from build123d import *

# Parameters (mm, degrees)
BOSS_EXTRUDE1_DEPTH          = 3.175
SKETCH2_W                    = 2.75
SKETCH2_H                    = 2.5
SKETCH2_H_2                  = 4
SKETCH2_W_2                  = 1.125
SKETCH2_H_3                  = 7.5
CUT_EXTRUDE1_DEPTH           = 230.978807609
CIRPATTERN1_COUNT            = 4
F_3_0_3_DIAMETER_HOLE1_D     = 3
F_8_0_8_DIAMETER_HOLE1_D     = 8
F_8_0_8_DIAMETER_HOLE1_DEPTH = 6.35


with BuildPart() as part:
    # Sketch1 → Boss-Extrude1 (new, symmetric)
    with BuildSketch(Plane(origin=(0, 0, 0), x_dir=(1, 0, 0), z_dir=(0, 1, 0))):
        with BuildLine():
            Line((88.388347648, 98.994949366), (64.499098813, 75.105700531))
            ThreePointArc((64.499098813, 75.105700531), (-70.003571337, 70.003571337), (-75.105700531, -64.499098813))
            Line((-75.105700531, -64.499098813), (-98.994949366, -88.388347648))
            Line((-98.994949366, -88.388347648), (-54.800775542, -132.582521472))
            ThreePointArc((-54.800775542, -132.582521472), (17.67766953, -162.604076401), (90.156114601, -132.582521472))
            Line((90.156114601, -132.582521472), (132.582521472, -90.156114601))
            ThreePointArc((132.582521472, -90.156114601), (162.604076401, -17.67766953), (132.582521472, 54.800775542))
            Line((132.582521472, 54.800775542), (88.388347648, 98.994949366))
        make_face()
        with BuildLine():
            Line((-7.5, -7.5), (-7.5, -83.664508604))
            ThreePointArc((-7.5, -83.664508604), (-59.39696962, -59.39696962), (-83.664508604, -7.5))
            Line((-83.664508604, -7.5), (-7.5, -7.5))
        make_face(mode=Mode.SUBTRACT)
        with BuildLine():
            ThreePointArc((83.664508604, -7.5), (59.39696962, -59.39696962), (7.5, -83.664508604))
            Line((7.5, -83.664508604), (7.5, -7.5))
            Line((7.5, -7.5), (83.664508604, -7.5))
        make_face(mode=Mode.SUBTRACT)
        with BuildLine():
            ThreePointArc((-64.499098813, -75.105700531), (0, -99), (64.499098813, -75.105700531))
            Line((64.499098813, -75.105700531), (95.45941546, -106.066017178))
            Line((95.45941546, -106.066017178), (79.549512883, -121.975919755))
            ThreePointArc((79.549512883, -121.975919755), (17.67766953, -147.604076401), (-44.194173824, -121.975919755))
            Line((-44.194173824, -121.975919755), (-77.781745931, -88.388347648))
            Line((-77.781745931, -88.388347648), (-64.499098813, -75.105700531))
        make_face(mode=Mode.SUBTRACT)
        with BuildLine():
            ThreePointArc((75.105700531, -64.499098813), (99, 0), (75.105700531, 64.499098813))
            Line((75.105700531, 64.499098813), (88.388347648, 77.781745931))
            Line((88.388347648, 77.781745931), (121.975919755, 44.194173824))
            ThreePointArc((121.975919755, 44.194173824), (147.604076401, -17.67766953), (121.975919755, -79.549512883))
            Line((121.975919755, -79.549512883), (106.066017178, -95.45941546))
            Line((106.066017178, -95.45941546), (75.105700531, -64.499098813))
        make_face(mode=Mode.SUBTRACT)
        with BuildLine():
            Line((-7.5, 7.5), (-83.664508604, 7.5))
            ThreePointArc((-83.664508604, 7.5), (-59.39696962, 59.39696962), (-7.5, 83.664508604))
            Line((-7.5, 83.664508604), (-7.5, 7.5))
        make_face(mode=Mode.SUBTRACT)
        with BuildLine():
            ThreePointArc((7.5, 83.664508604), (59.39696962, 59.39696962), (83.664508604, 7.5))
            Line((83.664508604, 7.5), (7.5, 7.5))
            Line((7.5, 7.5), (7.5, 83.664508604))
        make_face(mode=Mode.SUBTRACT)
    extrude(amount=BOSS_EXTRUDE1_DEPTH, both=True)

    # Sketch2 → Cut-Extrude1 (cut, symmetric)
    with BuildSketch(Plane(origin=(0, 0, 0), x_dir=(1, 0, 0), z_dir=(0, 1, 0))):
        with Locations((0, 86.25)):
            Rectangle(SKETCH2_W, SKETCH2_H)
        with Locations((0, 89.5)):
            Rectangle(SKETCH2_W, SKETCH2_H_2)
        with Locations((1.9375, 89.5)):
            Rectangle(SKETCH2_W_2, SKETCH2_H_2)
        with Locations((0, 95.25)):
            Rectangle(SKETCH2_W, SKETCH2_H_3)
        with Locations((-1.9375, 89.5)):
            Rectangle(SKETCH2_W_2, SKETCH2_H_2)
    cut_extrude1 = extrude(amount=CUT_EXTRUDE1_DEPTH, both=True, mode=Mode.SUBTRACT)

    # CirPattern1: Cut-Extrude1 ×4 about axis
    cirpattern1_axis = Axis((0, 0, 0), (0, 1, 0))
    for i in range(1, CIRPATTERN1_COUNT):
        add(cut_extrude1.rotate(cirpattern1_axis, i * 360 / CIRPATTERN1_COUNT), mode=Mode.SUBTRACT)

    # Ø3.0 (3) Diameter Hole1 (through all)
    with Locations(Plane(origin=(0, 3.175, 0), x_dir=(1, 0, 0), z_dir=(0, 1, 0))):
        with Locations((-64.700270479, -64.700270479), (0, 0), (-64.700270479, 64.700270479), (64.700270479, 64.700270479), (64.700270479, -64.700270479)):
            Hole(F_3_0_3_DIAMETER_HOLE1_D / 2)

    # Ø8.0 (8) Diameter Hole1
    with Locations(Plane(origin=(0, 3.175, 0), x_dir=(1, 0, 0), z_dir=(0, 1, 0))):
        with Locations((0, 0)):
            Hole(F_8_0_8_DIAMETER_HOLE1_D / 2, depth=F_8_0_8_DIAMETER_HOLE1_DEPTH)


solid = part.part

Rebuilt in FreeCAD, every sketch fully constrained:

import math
import FreeCAD as App
import Part
import Sketcher

V = App.Vector
Q = App.Units.Quantity


def add_polygon(sketch, points):
    """Adds a closed chain of lines whose ends are joined by coincident constraints."""
    first, n = sketch.GeometryCount, len(points)
    for a, b in zip(points, points[1:] + points[:1]):
        sketch.addGeometry(Part.LineSegment(App.Vector(*a, 0), App.Vector(*b, 0)), False)
    for i in range(n):
        sketch.addConstraint(Sketcher.Constraint("Coincident", first + i, 2, first + (i + 1) % n, 1))

doc = App.newDocument("Part")
params = doc.addObject("Spreadsheet::Sheet", "Params")
for row, (alias, value) in enumerate([
    ("sketch1_radius", "99 mm"),
    ("sketch1_radius2", "84 mm"),
    ("sketch1_radius3", "102.5 mm"),
    ("sketch1_radius4", "87.5 mm"),
    ("sketch1_length", "60 mm"),
    ("pad1_length", "6.35 mm"),
    ("sketch2_height", "4 mm"),
    ("sketch2_height2", "2.5 mm"),
    ("sketch2_height3", "7.5 mm"),
    ("sketch2_width", "2.75 mm"),
    ("pocket1_length", "461.957615 mm"),
    ("sketch3_diameter", "3 mm"),
    ("hole_diameter", "3 mm"),
    ("sketch4_diameter", "8 mm"),
    ("hole2_diameter", "8 mm"),
    ("hole2_depth", "6.35 mm"),
], start=1):
    params.set(f"A{row}", alias)
    params.set(f"B{row}", "=" + value)
    params.setAlias(f"B{row}", alias)

body = doc.addObject("PartDesign::Body", "Body")

# Sketch on XZ plane
sketch1 = doc.addObject("Sketcher::SketchObject", "Sketch")
body.addObject(sketch1)
sketch1.AttachmentSupport = (doc.XZ_Plane, [""])
sketch1.MapMode = "FlatFace"
sketch1.addGeometry(Part.LineSegment(V(88, -99, 0), V(64, -75, 0)), False)
sketch1.addGeometry(Part.ArcOfCircle(Part.Circle(V(0, 0, 0), V(0, 0, 1), 99), math.radians(139), math.radians(311)), False)
sketch1.addGeometry(Part.LineSegment(V(-75, 64, 0), V(-99, 88, 0)), False)
sketch1.addGeometry(Part.LineSegment(V(-99, 88, 0), V(-55, 133, 0)), False)
sketch1.addGeometry(Part.ArcOfCircle(Part.Circle(V(18, 60, 0), V(0, 0, 1), 102), math.radians(45), math.radians(135)), False)
sketch1.addGeometry(Part.LineSegment(V(90, 133, 0), V(133, 90, 0)), False)
sketch1.addGeometry(Part.ArcOfCircle(Part.Circle(V(60, 18, 0), V(0, 0, 1), 102), math.radians(-45), math.radians(45)), False)
sketch1.addGeometry(Part.LineSegment(V(133, -55, 0), V(88, -99, 0)), False)
sketch1.addGeometry(Part.LineSegment(V(-78, 88, 0), V(-64, 75, 0)), False)
sketch1.addGeometry(Part.ArcOfCircle(Part.Circle(V(0, 0, 0), V(0, 0, 1), 99), math.radians(49), math.radians(131)), False)
sketch1.addGeometry(Part.LineSegment(V(64, 75, 0), V(95, 106, 0)), False)
sketch1.addGeometry(Part.LineSegment(V(95, 106, 0), V(80, 122, 0)), False)
sketch1.addGeometry(Part.ArcOfCircle(Part.Circle(V(18, 60, 0), V(0, 0, 1), 88), math.radians(45), math.radians(135)), False)
sketch1.addGeometry(Part.LineSegment(V(-44, 122, 0), V(-78, 88, 0)), False)
sketch1.addGeometry(Part.LineSegment(V(-84, 8, 0), V(-8, 8, 0)), False)
sketch1.addGeometry(Part.LineSegment(V(-8, 8, 0), V(-8, 84, 0)), False)
sketch1.addGeometry(Part.ArcOfCircle(Part.Circle(V(0, 0, 0), V(0, 0, 1), 84), math.radians(95), math.radians(175)), False)
sketch1.addGeometry(Part.LineSegment(V(8, 8, 0), V(84, 8, 0)), False)
sketch1.addGeometry(Part.ArcOfCircle(Part.Circle(V(0, 0, 0), V(0, 0, 1), 84), math.radians(5), math.radians(85)), False)
sketch1.addGeometry(Part.LineSegment(V(8, 84, 0), V(8, 8, 0)), False)
sketch1.addGeometry(Part.LineSegment(V(-8, -84, 0), V(-8, -8, 0)), False)
sketch1.addGeometry(Part.LineSegment(V(-8, -8, 0), V(-84, -8, 0)), False)
sketch1.addGeometry(Part.ArcOfCircle(Part.Circle(V(0, 0, 0), V(0, 0, 1), 84), math.radians(-175), math.radians(-95)), False)
sketch1.addGeometry(Part.LineSegment(V(106, 95, 0), V(75, 64, 0)), False)
sketch1.addGeometry(Part.ArcOfCircle(Part.Circle(V(0, 0, 0), V(0, 0, 1), 99), math.radians(-41), math.radians(41)), False)
sketch1.addGeometry(Part.LineSegment(V(75, -64, 0), V(88, -78, 0)), False)
sketch1.addGeometry(Part.LineSegment(V(88, -78, 0), V(122, -44, 0)), False)
sketch1.addGeometry(Part.ArcOfCircle(Part.Circle(V(60, 18, 0), V(0, 0, 1), 88), math.radians(-45), math.radians(45)), False)
sketch1.addGeometry(Part.LineSegment(V(122, 80, 0), V(106, 95, 0)), False)
sketch1.addGeometry(Part.LineSegment(V(8, -8, 0), V(8, -84, 0)), False)
sketch1.addGeometry(Part.ArcOfCircle(Part.Circle(V(0, 0, 0), V(0, 0, 1), 84), math.radians(-85), math.radians(-5)), False)
sketch1.addGeometry(Part.LineSegment(V(84, -8, 0), V(8, -8, 0)), False)
sketch1.addConstraint(Sketcher.Constraint("Coincident", 0, 2, 1, 2))
sketch1.addConstraint(Sketcher.Constraint("Coincident", 1, 1, 2, 1))
sketch1.addConstraint(Sketcher.Constraint("Coincident", 2, 2, 3, 1))
sketch1.addConstraint(Sketcher.Constraint("Tangent", 3, 2, 4, 2))
sketch1.addConstraint(Sketcher.Constraint("Tangent", 4, 1, 5, 1))
sketch1.addConstraint(Sketcher.Constraint("Tangent", 5, 2, 6, 2))
sketch1.addConstraint(Sketcher.Constraint("Tangent", 6, 1, 7, 1))
sketch1.addConstraint(Sketcher.Constraint("Coincident", 7, 2, 0, 1))
sketch1.addConstraint(Sketcher.Constraint("Coincident", 8, 2, 9, 2))
sketch1.addConstraint(Sketcher.Constraint("Coincident", 9, 1, 10, 1))
sketch1.addConstraint(Sketcher.Constraint("Coincident", 10, 2, 11, 1))
sketch1.addConstraint(Sketcher.Constraint("Tangent", 11, 2, 12, 1))
sketch1.addConstraint(Sketcher.Constraint("Tangent", 12, 2, 13, 1))
sketch1.addConstraint(Sketcher.Constraint("Coincident", 13, 2, 8, 1))
sketch1.addConstraint(Sketcher.Constraint("Coincident", 14, 2, 15, 1))
sketch1.addConstraint(Sketcher.Constraint("Coincident", 15, 2, 16, 1))
sketch1.addConstraint(Sketcher.Constraint("Coincident", 16, 2, 14, 1))
sketch1.addConstraint(Sketcher.Constraint("Coincident", 17, 2, 18, 1))
sketch1.addConstraint(Sketcher.Constraint("Coincident", 18, 2, 19, 1))
sketch1.addConstraint(Sketcher.Constraint("Coincident", 19, 2, 17, 1))
sketch1.addConstraint(Sketcher.Constraint("Coincident", 20, 2, 21, 1))
sketch1.addConstraint(Sketcher.Constraint("Coincident", 21, 2, 22, 1))
sketch1.addConstraint(Sketcher.Constraint("Coincident", 22, 2, 20, 1))
sketch1.addConstraint(Sketcher.Constraint("Coincident", 23, 2, 24, 2))
sketch1.addConstraint(Sketcher.Constraint("Coincident", 24, 1, 25, 1))
sketch1.addConstraint(Sketcher.Constraint("Coincident", 25, 2, 26, 1))
sketch1.addConstraint(Sketcher.Constraint("Tangent", 26, 2, 27, 1))
sketch1.addConstraint(Sketcher.Constraint("Tangent", 27, 2, 28, 1))
sketch1.addConstraint(Sketcher.Constraint("Coincident", 28, 2, 23, 1))
sketch1.addConstraint(Sketcher.Constraint("Coincident", 29, 2, 30, 1))
sketch1.addConstraint(Sketcher.Constraint("Coincident", 30, 2, 31, 1))
sketch1.addConstraint(Sketcher.Constraint("Coincident", 31, 2, 29, 1))
sketch1.addConstraint(Sketcher.Constraint("Horizontal", 14))
sketch1.addConstraint(Sketcher.Constraint("Vertical", 15))
sketch1.addConstraint(Sketcher.Constraint("Horizontal", 17))
sketch1.addConstraint(Sketcher.Constraint("Vertical", 19))
sketch1.addConstraint(Sketcher.Constraint("Vertical", 20))
sketch1.addConstraint(Sketcher.Constraint("Horizontal", 21))
sketch1.addConstraint(Sketcher.Constraint("Vertical", 29))
sketch1.addConstraint(Sketcher.Constraint("Horizontal", 31))
sketch1.addConstraint(Sketcher.Constraint("Coincident", 1, 3, -1, 1))
sketch1.addConstraint(Sketcher.Constraint("Coincident", 9, 3, -1, 1))
sketch1.addConstraint(Sketcher.Constraint("Coincident", 16, 3, -1, 1))
sketch1.addConstraint(Sketcher.Constraint("Coincident", 18, 3, -1, 1))
sketch1.addConstraint(Sketcher.Constraint("Coincident", 22, 3, -1, 1))
sketch1.addConstraint(Sketcher.Constraint("Coincident", 24, 3, -1, 1))
sketch1.addConstraint(Sketcher.Constraint("Coincident", 30, 3, -1, 1))
sketch1.addConstraint(Sketcher.Constraint("Coincident", 12, 3, 4, 3))
sketch1.addConstraint(Sketcher.Constraint("Coincident", 27, 3, 6, 3))
sketch1.addConstraint(Sketcher.Constraint("Equal", 4, 6))
sketch1.addConstraint(Sketcher.Constraint("Equal", 1, 9))
sketch1.addConstraint(Sketcher.Constraint("Equal", 16, 18))
sketch1.addConstraint(Sketcher.Constraint("Equal", 18, 22))
sketch1.addConstraint(Sketcher.Constraint("Equal", 9, 24))
sketch1.addConstraint(Sketcher.Constraint("Equal", 12, 27))
sketch1.addConstraint(Sketcher.Constraint("Equal", 22, 30))
sketch1.addConstraint(Sketcher.Constraint("Symmetric", 19, 2, 20, 2, -1, 1))
sketch1.addConstraint(Sketcher.Constraint("Symmetric", 14, 2, 31, 2, -1, 1))
sketch1.addConstraint(Sketcher.Constraint("Symmetric", 14, 2, 19, 2, -2))
sketch1.addConstraint(Sketcher.Constraint("Parallel", 0, 2))
sketch1.addConstraint(Sketcher.Constraint("Perpendicular", 2, 3))
sketch1.addConstraint(Sketcher.Constraint("Perpendicular", 3, 5))
sketch1.addConstraint(Sketcher.Constraint("Perpendicular", 5, 7))
sketch1.addConstraint(Sketcher.Constraint("Perpendicular", 7, 8))
sketch1.addConstraint(Sketcher.Constraint("Perpendicular", 8, 10))
sketch1.addConstraint(Sketcher.Constraint("Perpendicular", 10, 11))
sketch1.addConstraint(Sketcher.Constraint("Perpendicular", 11, 13))
sketch1.addConstraint(Sketcher.Constraint("Parallel", 13, 23))
sketch1.addConstraint(Sketcher.Constraint("Perpendicular", 23, 25))
sketch1.addConstraint(Sketcher.Constraint("Perpendicular", 25, 26))
sketch1.addConstraint(Sketcher.Constraint("Perpendicular", 26, 28))
sketch1.addConstraint(Sketcher.Constraint("Horizontal", 3, 2, 4, 1))
sketch1.addConstraint(Sketcher.Constraint("Horizontal", 8, 2, 9, 1))
sketch1.addConstraint(Sketcher.Constraint("Horizontal", 2, 2, 13, 2))
sketch1.addConstraint(Sketcher.Constraint("Horizontal", 1, 1, 23, 2))
sketch1.addConstraint(Sketcher.Constraint("Vertical", 0, 2, 9, 1))
sketch1.addConstraint(Sketcher.Constraint("Vertical", 23, 2, 24, 1))
sketch1.addConstraint(Sketcher.Constraint("Equal", 31, 15))
sketch1.addConstraint(Sketcher.Constraint("Equal", 0, 2))
sketch1.addConstraint(Sketcher.Constraint("Equal", 3, 7))
sketch1.addConstraint(Sketcher.Constraint("Radius", 1, Q("99 mm")))
sketch1.addConstraint(Sketcher.Constraint("Radius", 16, Q("84 mm")))
sketch1.addConstraint(Sketcher.Constraint("Radius", 4, Q("102.5 mm")))
sketch1.addConstraint(Sketcher.Constraint("Radius", 12, Q("87.5 mm")))
sketch1.addConstraint(Sketcher.Constraint("Distance", 5, Q("60 mm")))
sketch1.addConstraint(Sketcher.Constraint("DistanceX", 15, 2, 18, 2, Q("15 mm")))
sketch1.addConstraint(Sketcher.Constraint("Distance", 3, Q("62.5 mm")))
sketch1.setExpression("Constraints[80]", "Params.sketch1_radius")
sketch1.setExpression("Constraints[81]", "Params.sketch1_radius2")
sketch1.setExpression("Constraints[82]", "Params.sketch1_radius3")
sketch1.setExpression("Constraints[83]", "Params.sketch1_radius4")
sketch1.setExpression("Constraints[84]", "Params.sketch1_length")
pad1 = doc.addObject("PartDesign::Pad", "Pad")
body.addObject(pad1)
pad1.Profile = sketch1
pad1.setExpression("Length", "Params.pad1_length")
pad1.Midplane = True

# Sketch on XZ plane
sketch2 = doc.addObject("Sketcher::SketchObject", "Sketch001")
body.addObject(sketch2)
sketch2.AttachmentSupport = (doc.XZ_Plane, [""])
sketch2.MapMode = "FlatFace"
add_polygon(sketch2, [(-1.4, -85), (1.4, -85), (1.4, -87.5), (2.5, -87.5), (2.5, -91.5), (1.4, -91.5), (1.4, -99), (-1.4, -99), (-1.4, -91.5), (-2.5, -91.5), (-2.5, -87.5), (-1.4, -87.5)])  # lines 0-11
sketch2.addConstraint(Sketcher.Constraint("Horizontal", 0))
sketch2.addConstraint(Sketcher.Constraint("Vertical", 1))
sketch2.addConstraint(Sketcher.Constraint("Horizontal", 2))
sketch2.addConstraint(Sketcher.Constraint("Vertical", 3))
sketch2.addConstraint(Sketcher.Constraint("Horizontal", 4))
sketch2.addConstraint(Sketcher.Constraint("Vertical", 5))
sketch2.addConstraint(Sketcher.Constraint("Horizontal", 6))
sketch2.addConstraint(Sketcher.Constraint("Vertical", 7))
sketch2.addConstraint(Sketcher.Constraint("Horizontal", 8))
sketch2.addConstraint(Sketcher.Constraint("Vertical", 9))
sketch2.addConstraint(Sketcher.Constraint("Horizontal", 10))
sketch2.addConstraint(Sketcher.Constraint("Vertical", 11))
sketch2.addConstraint(Sketcher.Constraint("Symmetric", 4, 2, 7, 2, -2))
sketch2.addConstraint(Sketcher.Constraint("Symmetric", 2, 2, 9, 2, -2))
sketch2.addConstraint(Sketcher.Constraint("Vertical", 1, 2, 4, 2))
sketch2.addConstraint(Sketcher.Constraint("Vertical", 7, 2, 10, 2))
sketch2.addConstraint(Sketcher.Constraint("DistanceY", 3, 2, 3, 1, Q("4 mm")))
sketch2.addConstraint(Sketcher.Constraint("DistanceY", 1, 2, 1, 1, Q("2.5 mm")))
sketch2.addConstraint(Sketcher.Constraint("DistanceY", 5, 2, 5, 1, Q("7.5 mm")))
sketch2.addConstraint(Sketcher.Constraint("DistanceY", 0, 2, -1, 1, Q("85 mm")))
sketch2.addConstraint(Sketcher.Constraint("DistanceX", 8, 2, 3, 2, Q("5 mm")))
sketch2.addConstraint(Sketcher.Constraint("DistanceX", 0, 1, 0, 2, Q("2.75 mm")))
sketch2.setExpression("Constraints[28]", "Params.sketch2_height")
sketch2.setExpression("Constraints[29]", "Params.sketch2_height2")
sketch2.setExpression("Constraints[30]", "Params.sketch2_height3")
sketch2.setExpression("Constraints[33]", "Params.sketch2_width")
pocket1 = doc.addObject("PartDesign::Pocket", "Pocket")
body.addObject(pocket1)
pocket1.Profile = sketch2
pocket1.setExpression("Length", "Params.pocket1_length")
pocket1.Midplane = True
doc.recompute()

polarpattern = doc.addObject("PartDesign::PolarPattern", "PolarPattern")
body.addObject(polarpattern)
polarpattern.Originals = [pocket1]
polarpattern.Axis = (doc.Y_Axis, [""])
polarpattern.Angle = 360
polarpattern.Occurrences = 4
body.Tip = polarpattern

# Sketch on XZ plane
sketch3 = doc.addObject("Sketcher::SketchObject", "Sketch002")
body.addObject(sketch3)
sketch3.AttachmentSupport = (doc.XZ_Plane, [""])
sketch3.MapMode = "FlatFace"
sketch3.AttachmentOffset = App.Placement(V(0, 0, -3.175), App.Rotation())
sketch3.addGeometry(Part.Circle(V(-64.7, 64.7, 0), V(0, 0, 1), 1.5), False)
sketch3.addGeometry(Part.Circle(V(0, 0, 0), V(0, 0, 1), 1.5), False)
sketch3.addGeometry(Part.Circle(V(-64.7, -64.7, 0), V(0, 0, 1), 1.5), False)
sketch3.addGeometry(Part.Circle(V(64.7, -64.7, 0), V(0, 0, 1), 1.5), False)
sketch3.addGeometry(Part.Circle(V(64.7, 64.7, 0), V(0, 0, 1), 1.5), False)
sketch3.addConstraint(Sketcher.Constraint("Coincident", 1, 3, -1, 1))
sketch3.addConstraint(Sketcher.Constraint("Equal", 0, 1))
sketch3.addConstraint(Sketcher.Constraint("Equal", 1, 2))
sketch3.addConstraint(Sketcher.Constraint("Equal", 2, 3))
sketch3.addConstraint(Sketcher.Constraint("Equal", 3, 4))
sketch3.addConstraint(Sketcher.Constraint("Symmetric", 0, 3, 3, 3, -1, 1))
sketch3.addConstraint(Sketcher.Constraint("Symmetric", 2, 3, 4, 3, -1, 1))
sketch3.addConstraint(Sketcher.Constraint("Symmetric", 2, 3, 3, 3, -2))
sketch3.addConstraint(Sketcher.Constraint("Diameter", 0, Q("3 mm")))
sketch3.addConstraint(Sketcher.Constraint("DistanceX", 0, 3, -1, 1, Q("64.70027 mm")))
sketch3.addConstraint(Sketcher.Constraint("DistanceY", -1, 1, 0, 3, Q("64.70027 mm")))
sketch3.setExpression("Constraints[8]", "Params.sketch3_diameter")
doc.recompute()
hole = doc.addObject("PartDesign::Hole", "Hole")
body.addObject(hole)
hole.Profile = sketch3
hole.ThreadType = "None"
hole.setExpression("Diameter", "Params.hole_diameter")
hole.DepthType = "ThroughAll"
hole.Reversed = True

# Sketch on XZ plane
sketch4 = doc.addObject("Sketcher::SketchObject", "Sketch003")
body.addObject(sketch4)
sketch4.AttachmentSupport = (doc.XZ_Plane, [""])
sketch4.MapMode = "FlatFace"
sketch4.AttachmentOffset = App.Placement(V(0, 0, -3.175), App.Rotation())
sketch4.addGeometry(Part.Circle(V(0, 0, 0), V(0, 0, 1), 4), False)
sketch4.addConstraint(Sketcher.Constraint("Coincident", 0, 3, -1, 1))
sketch4.addConstraint(Sketcher.Constraint("Diameter", 0, Q("8 mm")))
sketch4.setExpression("Constraints[1]", "Params.sketch4_diameter")
doc.recompute()
hole2 = doc.addObject("PartDesign::Hole", "Hole001")
body.addObject(hole2)
hole2.Profile = sketch4
hole2.ThreadType = "None"
hole2.setExpression("Diameter", "Params.hole2_diameter")
hole2.DepthType = "Dimension"
hole2.setExpression("Depth", "Params.hole2_depth")
hole2.DrillPoint = "Flat"
hole2.Reversed = True

doc.recompute()
